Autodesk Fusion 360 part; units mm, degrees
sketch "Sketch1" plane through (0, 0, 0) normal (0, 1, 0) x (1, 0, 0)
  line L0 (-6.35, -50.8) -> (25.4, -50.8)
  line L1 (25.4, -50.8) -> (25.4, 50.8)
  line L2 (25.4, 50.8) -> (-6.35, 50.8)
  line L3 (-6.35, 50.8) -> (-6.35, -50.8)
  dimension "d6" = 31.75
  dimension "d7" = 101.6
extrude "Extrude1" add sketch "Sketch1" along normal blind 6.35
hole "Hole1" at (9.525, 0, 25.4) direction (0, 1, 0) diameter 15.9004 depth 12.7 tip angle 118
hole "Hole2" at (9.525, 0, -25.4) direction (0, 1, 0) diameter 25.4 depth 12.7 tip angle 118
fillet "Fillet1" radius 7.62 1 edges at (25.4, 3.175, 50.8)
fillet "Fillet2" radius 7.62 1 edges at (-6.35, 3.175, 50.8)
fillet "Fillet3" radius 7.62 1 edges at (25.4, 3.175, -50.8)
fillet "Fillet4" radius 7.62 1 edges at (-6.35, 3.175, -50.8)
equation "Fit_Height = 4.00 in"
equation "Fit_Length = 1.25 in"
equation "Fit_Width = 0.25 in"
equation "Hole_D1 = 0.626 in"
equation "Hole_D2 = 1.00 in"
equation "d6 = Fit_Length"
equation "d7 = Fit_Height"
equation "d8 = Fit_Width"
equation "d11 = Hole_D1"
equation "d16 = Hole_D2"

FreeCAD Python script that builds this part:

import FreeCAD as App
import Part
import Sketcher

V = App.Vector
Q = App.Units.Quantity


def edges_at(feature, points):
    """Names of the edges that pass closest to the given points."""
    edges = feature.Shape.Edges
    near = lambda p: min(range(len(edges)), key=lambda i: edges[i].distToShape(Part.Vertex(*p))[0])
    return sorted({f"Edge{near(p) + 1}" for p in points})

doc = App.newDocument("Part")
body = doc.addObject("PartDesign::Body", "Body")

sketch1 = body.newObject("Sketcher::SketchObject", "Sketch")
sketch1.AttachmentSupport = (doc.getObject("XZ_Plane"), [""])
sketch1.MapMode = "FlatFace"
sketch1.addGeometry([
    Part.LineSegment(V(-6, -51, 0), V(-6, 51, 0)),
    Part.LineSegment(V(-6, 51, 0), V(25, 51, 0)),
    Part.LineSegment(V(25, 51, 0), V(25, -51, 0)),
    Part.LineSegment(V(25, -51, 0), V(-6, -51, 0)),
], False)
sketch1.addConstraint([
    Sketcher.Constraint("Coincident", 0, 2, 1, 1),
    Sketcher.Constraint("Coincident", 1, 2, 2, 1),
    Sketcher.Constraint("Coincident", 2, 2, 3, 1),
    Sketcher.Constraint("Coincident", 3, 2, 0, 1),
    Sketcher.Constraint("Vertical", 0),
    Sketcher.Constraint("Horizontal", 1),
    Sketcher.Constraint("Vertical", 2),
    Sketcher.Constraint("Horizontal", 3),
    Sketcher.Constraint("DistanceY", 0, 1, 0, 2, Q("4 in")),
    Sketcher.Constraint("DistanceX", 1, 1, 1, 2, Q("1.25 in")),
    Sketcher.Constraint("DistanceY", -1, 1, 0, 2, Q("2 in")),
    Sketcher.Constraint("DistanceX", -1, 1, 1, 2, Q("1 in")),
])
pad1 = body.newObject("PartDesign::Pad", "Pad")
pad1.Profile = sketch1
pad1.Length = Q("0.25 in")
pad1.Reversed = True

sketch2 = body.newObject("Sketcher::SketchObject", "Sketch001")
sketch2.AttachmentSupport = (doc.getObject("XZ_Plane"), [""])
sketch2.MapMode = "FlatFace"
sketch2.addGeometry(Part.Circle(V(10, 25, 0), V(0, 0, 1), 8), False)
sketch2.addConstraint([
    Sketcher.Constraint("Diameter", 0, Q("0.626 in")),
    Sketcher.Constraint("DistanceY", -1, 1, 0, 3, Q("1 in")),
    Sketcher.Constraint("DistanceX", -1, 1, 0, 3, Q("0.375 in")),
])
doc.recompute()
hole = body.newObject("PartDesign::Hole", "Hole")
hole.Profile = sketch2
hole.ThreadType = "None"
hole.Diameter = Q("0.626 in")
hole.DepthType = "Dimension"
hole.Depth = Q("0.5 in")
hole.DrillPoint = "Angled"
hole.DrillPointAngle = 118

sketch3 = body.newObject("Sketcher::SketchObject", "Sketch002")
sketch3.AttachmentSupport = (doc.getObject("XZ_Plane"), [""])
sketch3.MapMode = "FlatFace"
sketch3.addGeometry(Part.Circle(V(10, -25, 0), V(0, 0, 1), 13), False)
sketch3.addConstraint([
    Sketcher.Constraint("Diameter", 0, Q("1 in")),
    Sketcher.Constraint("DistanceY", 0, 3, -1, 1, Q("1 in")),
    Sketcher.Constraint("DistanceX", -1, 1, 0, 3, Q("0.375 in")),
])
doc.recompute()
hole2 = body.newObject("PartDesign::Hole", "Hole001")
hole2.Profile = sketch3
hole2.ThreadType = "None"
hole2.Diameter = Q("1 in")
hole2.DepthType = "Dimension"
hole2.Depth = Q("0.5 in")
hole2.DrillPoint = "Angled"
hole2.DrillPointAngle = 118
doc.recompute()

fillet = body.newObject("PartDesign::Fillet", "Fillet")
fillet.Base = (hole2, edges_at(hole2, [(25.4, 3.175, 50.8)]))
fillet.Radius = Q("0.3 in")
doc.recompute()

fillet2 = body.newObject("PartDesign::Fillet", "Fillet001")
fillet2.Base = (fillet, edges_at(fillet, [(-6.35, 3.175, 50.8)]))
fillet2.Radius = Q("0.3 in")
doc.recompute()

fillet3 = body.newObject("PartDesign::Fillet", "Fillet002")
fillet3.Base = (fillet2, edges_at(fillet2, [(25.4, 3.175, -50.8)]))
fillet3.Radius = Q("0.3 in")
doc.recompute()

fillet4 = body.newObject("PartDesign::Fillet", "Fillet003")
fillet4.Base = (fillet3, edges_at(fillet3, [(-6.35, 3.175, -50.8)]))
fillet4.Radius = Q("0.3 in")

doc.recompute()
